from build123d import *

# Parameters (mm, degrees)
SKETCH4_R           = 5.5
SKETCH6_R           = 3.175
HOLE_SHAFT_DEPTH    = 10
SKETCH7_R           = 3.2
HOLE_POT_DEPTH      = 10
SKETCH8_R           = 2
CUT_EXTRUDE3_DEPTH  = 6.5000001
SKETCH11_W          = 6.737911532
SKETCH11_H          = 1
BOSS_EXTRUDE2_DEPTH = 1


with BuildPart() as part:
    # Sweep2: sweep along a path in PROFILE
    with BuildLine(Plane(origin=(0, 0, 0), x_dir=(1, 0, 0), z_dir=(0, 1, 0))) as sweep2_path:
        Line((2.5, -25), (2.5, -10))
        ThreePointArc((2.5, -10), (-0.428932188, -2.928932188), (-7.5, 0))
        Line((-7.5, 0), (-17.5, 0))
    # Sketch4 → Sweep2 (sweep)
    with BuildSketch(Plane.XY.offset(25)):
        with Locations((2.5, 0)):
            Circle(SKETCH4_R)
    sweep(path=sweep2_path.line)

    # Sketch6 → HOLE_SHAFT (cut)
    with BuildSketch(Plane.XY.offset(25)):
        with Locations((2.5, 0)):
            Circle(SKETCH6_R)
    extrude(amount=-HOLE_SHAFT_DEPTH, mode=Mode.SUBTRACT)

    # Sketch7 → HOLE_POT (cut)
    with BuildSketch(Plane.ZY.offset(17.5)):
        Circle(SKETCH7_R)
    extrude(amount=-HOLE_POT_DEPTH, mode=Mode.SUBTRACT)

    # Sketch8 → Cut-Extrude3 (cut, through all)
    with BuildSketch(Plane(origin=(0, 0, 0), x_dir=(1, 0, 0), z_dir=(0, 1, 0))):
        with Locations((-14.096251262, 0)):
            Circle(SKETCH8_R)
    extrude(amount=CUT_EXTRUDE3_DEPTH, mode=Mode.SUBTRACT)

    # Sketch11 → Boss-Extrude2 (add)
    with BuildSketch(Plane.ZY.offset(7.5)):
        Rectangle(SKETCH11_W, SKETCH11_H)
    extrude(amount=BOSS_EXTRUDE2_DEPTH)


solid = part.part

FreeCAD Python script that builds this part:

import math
import FreeCAD as App
import Part
import Sketcher
Q = App.Units.Quantity

doc = App.newDocument("Part")
body = doc.addObject("PartDesign::Body", "Body")

# Sketch on XY plane
sketch1 = doc.addObject("Sketcher::SketchObject", "Sketch")
body.addObject(sketch1)
sketch1.AttachmentSupport = (doc.XY_Plane, [""])
sketch1.MapMode = "FlatFace"
sketch1.AttachmentOffset = App.Placement(App.Vector(0, 0, 25), App.Rotation())
sketch1.addGeometry(Part.Circle(App.Vector(2.5, 0, 0), App.Vector(0, 0, 1), 5.5), False)
sketch1.addConstraint(Sketcher.Constraint("PointOnObject", 0, 3, -1))
sketch1.addConstraint(Sketcher.Constraint("Diameter", 0, Q("11 mm")))
sketch1.addConstraint(Sketcher.Constraint("DistanceX", -1, 1, 0, 3, Q("2.5 mm")))

# Sketch on XZ plane
sketch2 = doc.addObject("Sketcher::SketchObject", "Sketch001")
body.addObject(sketch2)
sketch2.AttachmentSupport = (doc.XZ_Plane, [""])
sketch2.MapMode = "FlatFace"
sketch2.addGeometry(Part.LineSegment(App.Vector(2.5, 25, 0), App.Vector(2.5, 10, 0)), False)
sketch2.addGeometry(Part.ArcOfCircle(Part.Circle(App.Vector(-7.5, 10, 0), App.Vector(0, 0, 1), 10), math.radians(-90), math.radians(0)), False)
sketch2.addGeometry(Part.LineSegment(App.Vector(-7.5, 0, 0), App.Vector(-17.5, 0, 0)), False)
sketch2.addConstraint(Sketcher.Constraint("Tangent", 0, 2, 1, 2))
sketch2.addConstraint(Sketcher.Constraint("Tangent", 1, 1, 2, 1))
sketch2.addConstraint(Sketcher.Constraint("Vertical", 0))
sketch2.addConstraint(Sketcher.Constraint("Horizontal", 2))
sketch2.addConstraint(Sketcher.Constraint("PointOnObject", 1, 1, -1))
sketch2.addConstraint(Sketcher.Constraint("Radius", 1, Q("10 mm")))
sketch2.addConstraint(Sketcher.Constraint("DistanceX", 2, 2, 2, 1, Q("10 mm")))
sketch2.addConstraint(Sketcher.Constraint("DistanceY", 0, 2, 0, 1, Q("15 mm")))
sketch2.addConstraint(Sketcher.Constraint("DistanceX", 1, 3, -1, 1, Q("7.5 mm")))
doc.recompute()

additivepipe = doc.addObject("PartDesign::AdditivePipe", "AdditivePipe")
body.addObject(additivepipe)
additivepipe.Profile = sketch1
additivepipe.Spine = (sketch2, ["Edge1", "Edge2", "Edge3"])

# Sketch on XY plane
sketch3 = doc.addObject("Sketcher::SketchObject", "Sketch002")
body.addObject(sketch3)
sketch3.AttachmentSupport = (doc.XY_Plane, [""])
sketch3.MapMode = "FlatFace"
sketch3.AttachmentOffset = App.Placement(App.Vector(0, 0, 25), App.Rotation())
sketch3.addGeometry(Part.Circle(App.Vector(2.5, 0, 0), App.Vector(0, 0, 1), 3.175), False)
sketch3.addConstraint(Sketcher.Constraint("PointOnObject", 0, 3, -1))
sketch3.addConstraint(Sketcher.Constraint("Diameter", 0, Q("6.35 mm")))
sketch3.addConstraint(Sketcher.Constraint("DistanceX", -1, 1, 0, 3, Q("2.5 mm")))
pocket1 = doc.addObject("PartDesign::Pocket", "Pocket")
body.addObject(pocket1)
pocket1.Profile = sketch3
pocket1.Length = 10

# Sketch on YZ plane
sketch4 = doc.addObject("Sketcher::SketchObject", "Sketch003")
body.addObject(sketch4)
sketch4.AttachmentSupport = (doc.YZ_Plane, [""])
sketch4.MapMode = "FlatFace"
sketch4.AttachmentOffset = App.Placement(App.Vector(0, 0, -17.5), App.Rotation())
sketch4.addGeometry(Part.Circle(App.Vector(0, 0, 0), App.Vector(0, 0, 1), 3.2), False)
sketch4.addConstraint(Sketcher.Constraint("Coincident", 0, 3, -1, 1))
sketch4.addConstraint(Sketcher.Constraint("Diameter", 0, Q("6.4 mm")))
pocket2 = doc.addObject("PartDesign::Pocket", "Pocket001")
body.addObject(pocket2)
pocket2.Profile = sketch4
pocket2.Length = 10
pocket2.Reversed = True

# Sketch on XZ plane
sketch5 = doc.addObject("Sketcher::SketchObject", "Sketch004")
body.addObject(sketch5)
sketch5.AttachmentSupport = (doc.XZ_Plane, [""])
sketch5.MapMode = "FlatFace"
sketch5.addGeometry(Part.Circle(App.Vector(-14.096251, 0, 0), App.Vector(0, 0, 1), 2), False)
sketch5.addConstraint(Sketcher.Constraint("PointOnObject", 0, 3, -1))
sketch5.addConstraint(Sketcher.Constraint("Diameter", 0, Q("4 mm")))
sketch5.addConstraint(Sketcher.Constraint("DistanceX", 0, 3, -1, 1, Q("14.096251 mm")))
pocket3 = doc.addObject("PartDesign::Pocket", "Pocket002")
body.addObject(pocket3)
pocket3.Profile = sketch5
pocket3.Type = "ThroughAll"

# Sketch on YZ plane
sketch6 = doc.addObject("Sketcher::SketchObject", "Sketch005")
body.addObject(sketch6)
sketch6.AttachmentSupport = (doc.YZ_Plane, [""])
sketch6.MapMode = "FlatFace"
sketch6.AttachmentOffset = App.Placement(App.Vector(0, 0, -7.5), App.Rotation())
sketch6.addGeometry(Part.LineSegment(App.Vector(0.5, -3.368956, 0), App.Vector(-0.5, -3.368956, 0)), False)
sketch6.addGeometry(Part.LineSegment(App.Vector(-0.5, -3.368956, 0), App.Vector(-0.5, 3.368956, 0)), False)
sketch6.addGeometry(Part.LineSegment(App.Vector(-0.5, 3.368956, 0), App.Vector(0.5, 3.368956, 0)), False)
sketch6.addGeometry(Part.LineSegment(App.Vector(0.5, 3.368956, 0), App.Vector(0.5, -3.368956, 0)), False)
sketch6.addConstraint(Sketcher.Constraint("Coincident", 0, 2, 1, 1))
sketch6.addConstraint(Sketcher.Constraint("Coincident", 1, 2, 2, 1))
sketch6.addConstraint(Sketcher.Constraint("Coincident", 2, 2, 3, 1))
sketch6.addConstraint(Sketcher.Constraint("Coincident", 3, 2, 0, 1))
sketch6.addConstraint(Sketcher.Constraint("Horizontal", 0))
sketch6.addConstraint(Sketcher.Constraint("Vertical", 1))
sketch6.addConstraint(Sketcher.Constraint("Horizontal", 2))
sketch6.addConstraint(Sketcher.Constraint("Vertical", 3))
sketch6.addConstraint(Sketcher.Constraint("Symmetric", 0, 2, 2, 2, -1, 1))
sketch6.addConstraint(Sketcher.Constraint("DistanceX", 0, 2, 0, 1, Q("1 mm")))
sketch6.addConstraint(Sketcher.Constraint("DistanceY", 1, 1, 1, 2, Q("6.737912 mm")))
pad1 = doc.addObject("PartDesign::Pad", "Pad")
body.addObject(pad1)
pad1.Profile = sketch6
pad1.Length = 1
pad1.Reversed = True

doc.recompute()
